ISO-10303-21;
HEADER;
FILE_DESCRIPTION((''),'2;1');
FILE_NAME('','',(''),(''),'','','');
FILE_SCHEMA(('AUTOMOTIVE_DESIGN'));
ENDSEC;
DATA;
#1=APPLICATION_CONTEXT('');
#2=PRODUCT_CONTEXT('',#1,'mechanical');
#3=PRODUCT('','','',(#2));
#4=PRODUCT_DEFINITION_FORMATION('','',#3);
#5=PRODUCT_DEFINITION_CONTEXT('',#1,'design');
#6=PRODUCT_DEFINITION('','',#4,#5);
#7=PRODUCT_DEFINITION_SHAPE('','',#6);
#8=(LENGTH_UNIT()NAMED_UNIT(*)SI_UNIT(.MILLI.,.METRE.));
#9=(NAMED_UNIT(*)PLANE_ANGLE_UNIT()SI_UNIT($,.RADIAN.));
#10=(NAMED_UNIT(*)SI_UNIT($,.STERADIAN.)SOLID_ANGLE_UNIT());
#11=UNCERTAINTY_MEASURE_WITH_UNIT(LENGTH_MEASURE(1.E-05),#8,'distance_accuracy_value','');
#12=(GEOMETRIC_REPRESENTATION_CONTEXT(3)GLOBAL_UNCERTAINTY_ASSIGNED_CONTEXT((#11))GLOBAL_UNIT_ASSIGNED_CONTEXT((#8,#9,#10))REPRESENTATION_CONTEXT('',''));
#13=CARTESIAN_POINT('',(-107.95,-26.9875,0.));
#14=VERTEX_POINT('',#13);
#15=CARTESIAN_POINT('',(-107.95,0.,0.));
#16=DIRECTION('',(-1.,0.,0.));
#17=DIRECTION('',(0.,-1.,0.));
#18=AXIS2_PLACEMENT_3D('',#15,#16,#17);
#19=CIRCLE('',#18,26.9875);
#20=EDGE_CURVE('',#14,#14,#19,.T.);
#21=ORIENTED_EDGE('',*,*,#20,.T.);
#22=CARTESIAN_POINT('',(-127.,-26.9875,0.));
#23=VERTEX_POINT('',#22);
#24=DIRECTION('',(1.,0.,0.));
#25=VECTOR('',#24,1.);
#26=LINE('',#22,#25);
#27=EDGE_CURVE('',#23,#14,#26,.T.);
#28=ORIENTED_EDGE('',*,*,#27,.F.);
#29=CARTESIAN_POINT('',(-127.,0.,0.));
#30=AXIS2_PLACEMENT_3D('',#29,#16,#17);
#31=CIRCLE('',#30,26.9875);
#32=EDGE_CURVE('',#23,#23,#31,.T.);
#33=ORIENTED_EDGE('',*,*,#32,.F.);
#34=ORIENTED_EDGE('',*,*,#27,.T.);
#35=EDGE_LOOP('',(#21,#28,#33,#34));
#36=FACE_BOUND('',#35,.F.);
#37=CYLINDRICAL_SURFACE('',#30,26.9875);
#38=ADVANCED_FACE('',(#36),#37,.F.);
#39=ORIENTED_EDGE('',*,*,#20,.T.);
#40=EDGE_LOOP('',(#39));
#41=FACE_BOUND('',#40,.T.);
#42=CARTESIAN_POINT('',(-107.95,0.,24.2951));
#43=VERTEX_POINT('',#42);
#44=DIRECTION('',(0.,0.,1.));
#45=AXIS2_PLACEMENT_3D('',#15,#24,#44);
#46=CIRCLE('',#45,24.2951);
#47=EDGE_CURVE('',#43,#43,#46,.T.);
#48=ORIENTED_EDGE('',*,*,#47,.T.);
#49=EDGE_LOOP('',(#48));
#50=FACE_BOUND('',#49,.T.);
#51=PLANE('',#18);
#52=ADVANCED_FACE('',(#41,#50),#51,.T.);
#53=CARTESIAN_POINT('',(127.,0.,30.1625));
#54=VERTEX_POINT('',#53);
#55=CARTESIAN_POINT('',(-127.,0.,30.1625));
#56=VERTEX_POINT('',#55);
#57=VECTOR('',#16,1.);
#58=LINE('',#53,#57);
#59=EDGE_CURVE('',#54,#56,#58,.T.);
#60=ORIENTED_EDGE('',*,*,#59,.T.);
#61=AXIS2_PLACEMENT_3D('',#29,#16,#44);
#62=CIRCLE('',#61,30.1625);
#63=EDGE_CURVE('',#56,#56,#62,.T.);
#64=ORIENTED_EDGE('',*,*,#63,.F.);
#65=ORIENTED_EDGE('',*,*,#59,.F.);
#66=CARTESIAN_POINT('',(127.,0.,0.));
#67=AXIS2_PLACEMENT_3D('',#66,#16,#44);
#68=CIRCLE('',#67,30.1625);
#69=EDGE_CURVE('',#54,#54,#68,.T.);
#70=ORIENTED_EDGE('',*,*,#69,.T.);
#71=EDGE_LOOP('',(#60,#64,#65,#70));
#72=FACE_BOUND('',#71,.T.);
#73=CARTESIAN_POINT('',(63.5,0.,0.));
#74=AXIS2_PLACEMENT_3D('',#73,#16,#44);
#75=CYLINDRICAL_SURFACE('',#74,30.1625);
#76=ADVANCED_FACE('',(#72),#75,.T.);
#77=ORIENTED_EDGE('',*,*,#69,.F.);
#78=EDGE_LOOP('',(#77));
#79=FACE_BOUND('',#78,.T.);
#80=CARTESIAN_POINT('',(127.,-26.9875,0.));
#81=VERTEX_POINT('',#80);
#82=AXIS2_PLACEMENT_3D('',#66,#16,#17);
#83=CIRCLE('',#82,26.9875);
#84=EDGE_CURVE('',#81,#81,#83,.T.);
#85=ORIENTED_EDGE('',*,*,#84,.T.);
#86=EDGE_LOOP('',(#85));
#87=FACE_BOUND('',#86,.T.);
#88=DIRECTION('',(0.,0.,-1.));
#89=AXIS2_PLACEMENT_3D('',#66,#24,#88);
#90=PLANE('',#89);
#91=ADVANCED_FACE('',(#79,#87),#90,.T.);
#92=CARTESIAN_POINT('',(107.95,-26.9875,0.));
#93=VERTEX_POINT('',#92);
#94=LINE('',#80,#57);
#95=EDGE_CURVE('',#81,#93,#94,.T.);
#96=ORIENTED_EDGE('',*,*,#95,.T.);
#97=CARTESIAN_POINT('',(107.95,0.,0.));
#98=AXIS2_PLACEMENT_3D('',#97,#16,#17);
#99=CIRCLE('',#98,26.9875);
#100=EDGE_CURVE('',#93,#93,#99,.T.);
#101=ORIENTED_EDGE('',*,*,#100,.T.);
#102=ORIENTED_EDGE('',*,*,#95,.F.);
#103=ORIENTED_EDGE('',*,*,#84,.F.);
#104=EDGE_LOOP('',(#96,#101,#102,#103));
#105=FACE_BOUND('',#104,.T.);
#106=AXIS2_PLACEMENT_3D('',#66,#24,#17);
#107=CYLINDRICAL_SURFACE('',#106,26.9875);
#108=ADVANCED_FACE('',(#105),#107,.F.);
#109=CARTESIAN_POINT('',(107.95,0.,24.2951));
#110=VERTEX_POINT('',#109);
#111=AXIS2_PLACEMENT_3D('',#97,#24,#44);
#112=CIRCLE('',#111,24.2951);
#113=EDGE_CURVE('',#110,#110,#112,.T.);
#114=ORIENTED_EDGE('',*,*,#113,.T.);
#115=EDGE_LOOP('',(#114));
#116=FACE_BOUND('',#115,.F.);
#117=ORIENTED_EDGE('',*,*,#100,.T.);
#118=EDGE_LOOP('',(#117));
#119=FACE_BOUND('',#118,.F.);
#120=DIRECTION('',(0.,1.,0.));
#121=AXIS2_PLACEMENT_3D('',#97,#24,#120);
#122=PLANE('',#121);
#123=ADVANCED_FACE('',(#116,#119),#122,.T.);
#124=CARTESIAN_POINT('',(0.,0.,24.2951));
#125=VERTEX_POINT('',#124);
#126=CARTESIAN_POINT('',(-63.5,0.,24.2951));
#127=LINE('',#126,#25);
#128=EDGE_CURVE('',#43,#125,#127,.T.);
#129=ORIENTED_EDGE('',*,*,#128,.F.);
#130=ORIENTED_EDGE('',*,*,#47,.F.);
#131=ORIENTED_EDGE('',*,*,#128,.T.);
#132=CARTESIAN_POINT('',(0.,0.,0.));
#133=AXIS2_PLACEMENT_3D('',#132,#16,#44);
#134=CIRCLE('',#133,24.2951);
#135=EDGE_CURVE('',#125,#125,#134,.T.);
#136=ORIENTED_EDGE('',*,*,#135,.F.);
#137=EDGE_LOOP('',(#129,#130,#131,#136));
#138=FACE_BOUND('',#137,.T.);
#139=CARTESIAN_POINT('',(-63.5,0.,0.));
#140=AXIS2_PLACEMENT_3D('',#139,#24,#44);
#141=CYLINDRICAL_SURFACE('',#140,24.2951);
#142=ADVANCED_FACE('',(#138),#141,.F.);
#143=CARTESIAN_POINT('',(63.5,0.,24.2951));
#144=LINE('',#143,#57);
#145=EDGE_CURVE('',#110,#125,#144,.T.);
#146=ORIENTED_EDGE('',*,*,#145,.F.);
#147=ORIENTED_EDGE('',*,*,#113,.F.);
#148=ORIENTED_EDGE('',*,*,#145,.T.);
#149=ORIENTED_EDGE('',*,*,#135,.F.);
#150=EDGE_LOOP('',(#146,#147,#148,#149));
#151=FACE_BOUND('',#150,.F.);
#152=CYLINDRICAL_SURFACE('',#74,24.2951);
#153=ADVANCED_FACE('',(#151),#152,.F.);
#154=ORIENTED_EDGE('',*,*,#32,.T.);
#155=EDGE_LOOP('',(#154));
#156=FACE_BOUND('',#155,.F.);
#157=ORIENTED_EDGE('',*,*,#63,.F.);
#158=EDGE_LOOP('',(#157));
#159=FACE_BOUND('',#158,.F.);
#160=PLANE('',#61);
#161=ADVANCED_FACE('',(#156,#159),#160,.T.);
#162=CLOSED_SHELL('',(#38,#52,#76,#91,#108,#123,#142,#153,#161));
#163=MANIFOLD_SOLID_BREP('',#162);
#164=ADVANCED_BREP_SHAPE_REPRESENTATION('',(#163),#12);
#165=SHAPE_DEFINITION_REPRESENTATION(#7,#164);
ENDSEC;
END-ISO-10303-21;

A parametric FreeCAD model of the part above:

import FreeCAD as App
import Part
import Sketcher
from FreeCAD import Vector
Q = App.Units.Quantity

doc = App.newDocument("Part")
body = doc.addObject("PartDesign::Body", "Body")

sketch1 = doc.addObject("Sketcher::SketchObject", "Sketch")
body.addObject(sketch1)
sketch1.AttachmentSupport = (doc.XZ_Plane, [""])
sketch1.MapMode = "FlatFace"
sketch1.addGeometry([
    Part.LineSegment(Vector(-127, 30, 0), Vector(-127, 24, 0)),
    Part.LineSegment(Vector(-127, 24, 0), Vector(0, 24, 0)),
    Part.LineSegment(Vector(0, 24, 0), Vector(0, 30, 0)),
    Part.LineSegment(Vector(0, 30, 0), Vector(-127, 30, 0)),
], False)
sketch1.addConstraint([
    Sketcher.Constraint("Coincident", 0, 2, 1, 1),
    Sketcher.Constraint("Coincident", 1, 2, 2, 1),
    Sketcher.Constraint("Coincident", 2, 2, 3, 1),
    Sketcher.Constraint("Coincident", 3, 2, 0, 1),
    Sketcher.Constraint("Vertical", 0),
    Sketcher.Constraint("Horizontal", 1),
    Sketcher.Constraint("Vertical", 2),
    Sketcher.Constraint("Horizontal", 3),
    Sketcher.Constraint("PointOnObject", 1, 2, -2),
    Sketcher.Constraint("DistanceX", 1, 1, 1, 2, Q("5 in")),
    Sketcher.Constraint("DistanceY", 0, 2, 0, 1, Q("0.231 in")),
    Sketcher.Constraint("DistanceY", -1, 1, 2, 2, Q("1.1875 in")),
])
revolution = doc.addObject("PartDesign::Revolution", "Revolution")
body.addObject(revolution)
revolution.Profile = sketch1
revolution.ReferenceAxis = (sketch1, ["H_Axis"])
revolution.Angle = 360

sketch2 = doc.addObject("Sketcher::SketchObject", "Sketch001")
body.addObject(sketch2)
sketch2.AttachmentSupport = (doc.YZ_Plane, [""])
sketch2.MapMode = "FlatFace"
sketch2.AttachmentOffset = App.Placement(Vector(0, 0, -5 * 25.4), App.Rotation())
sketch2.addGeometry(Part.Circle(Vector(0, 0, 0), Vector(0, 0, 1), 27), False)
sketch2.addConstraint([
    Sketcher.Constraint("Coincident", 0, 3, -1, 1),
    Sketcher.Constraint("Diameter", 0, Q("2.125 in")),
])
pocket1 = doc.addObject("PartDesign::Pocket", "Pocket")
body.addObject(pocket1)
pocket1.Profile = sketch2
pocket1.Length = Q("0.75 in")
pocket1.Reversed = True
body2 = doc.addObject("PartDesign::Body", "Body001")
doc.recompute()

body2.BaseFeature = body
doc.recompute()

mirroring = doc.addObject("Part::Mirroring", "Mirroring")
mirroring.Source = body
mirroring.Base = Vector(0, 0, 0)
mirroring.Normal = Vector(1, 0, 0)
body3 = doc.addObject("PartDesign::Body", "Body002")
body3.BaseFeature = mirroring
boolean = doc.addObject("PartDesign::Boolean", "Boolean")
body2.addObject(boolean)
boolean.Type = "Fuse"
boolean.addObjects([body3])
doc.recompute()
mirroring.Visibility = False

doc.recompute()
